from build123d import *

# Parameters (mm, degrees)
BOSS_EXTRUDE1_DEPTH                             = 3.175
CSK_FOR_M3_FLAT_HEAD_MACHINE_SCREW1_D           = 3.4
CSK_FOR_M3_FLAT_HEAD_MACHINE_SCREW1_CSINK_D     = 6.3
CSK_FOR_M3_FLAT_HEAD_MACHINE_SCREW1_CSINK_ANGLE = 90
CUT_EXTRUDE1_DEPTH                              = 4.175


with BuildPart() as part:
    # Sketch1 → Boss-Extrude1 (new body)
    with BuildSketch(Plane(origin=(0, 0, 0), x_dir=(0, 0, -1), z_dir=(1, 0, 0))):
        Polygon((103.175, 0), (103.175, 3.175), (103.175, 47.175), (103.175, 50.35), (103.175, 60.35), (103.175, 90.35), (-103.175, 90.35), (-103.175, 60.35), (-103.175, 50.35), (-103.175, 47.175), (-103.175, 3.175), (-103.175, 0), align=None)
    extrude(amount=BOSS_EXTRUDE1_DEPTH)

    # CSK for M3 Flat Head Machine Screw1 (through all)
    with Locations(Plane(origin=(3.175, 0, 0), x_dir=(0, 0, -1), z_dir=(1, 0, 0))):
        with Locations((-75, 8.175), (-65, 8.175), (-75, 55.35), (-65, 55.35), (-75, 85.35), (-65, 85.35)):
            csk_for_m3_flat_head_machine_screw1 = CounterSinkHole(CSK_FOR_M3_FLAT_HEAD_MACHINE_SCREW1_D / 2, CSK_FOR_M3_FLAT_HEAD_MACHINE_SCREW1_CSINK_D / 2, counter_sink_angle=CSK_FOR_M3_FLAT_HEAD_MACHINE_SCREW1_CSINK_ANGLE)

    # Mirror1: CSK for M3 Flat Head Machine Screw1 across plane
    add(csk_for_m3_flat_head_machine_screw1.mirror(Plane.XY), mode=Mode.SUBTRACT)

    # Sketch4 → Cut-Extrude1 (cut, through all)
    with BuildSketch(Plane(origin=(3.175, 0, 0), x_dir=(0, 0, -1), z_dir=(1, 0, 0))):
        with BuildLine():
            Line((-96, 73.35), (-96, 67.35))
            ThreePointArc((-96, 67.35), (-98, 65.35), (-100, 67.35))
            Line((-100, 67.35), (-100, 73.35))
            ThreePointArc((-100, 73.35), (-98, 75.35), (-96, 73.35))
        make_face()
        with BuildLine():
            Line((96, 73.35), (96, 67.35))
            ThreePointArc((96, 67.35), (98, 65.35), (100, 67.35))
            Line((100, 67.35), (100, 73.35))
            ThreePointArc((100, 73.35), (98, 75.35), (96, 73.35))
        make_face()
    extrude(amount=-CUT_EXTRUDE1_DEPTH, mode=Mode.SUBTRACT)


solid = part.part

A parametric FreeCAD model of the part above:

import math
import FreeCAD as App
import Part
import Sketcher

V = App.Vector

doc = App.newDocument("Part")
body = doc.addObject("PartDesign::Body", "Body")

sketch1 = body.newObject("Sketcher::SketchObject", "Sketch")
sketch1.AttachmentSupport = (doc.getObject("YZ_Plane"), [""])
sketch1.MapMode = "FlatFace"
sketch1.addGeometry([
    Part.LineSegment(V(0, -103.175, 0), V(90.35, -103.175, 0)),
    Part.LineSegment(V(90.35, -103.175, 0), V(90.35, 103.175, 0)),
    Part.LineSegment(V(90.35, 103.175, 0), V(0, 103.175, 0)),
    Part.LineSegment(V(0, 103.175, 0), V(0, -103.175, 0)),
], False)
sketch1.addConstraint([
    Sketcher.Constraint("Coincident", 0, 2, 1, 1),
    Sketcher.Constraint("Coincident", 1, 2, 2, 1),
    Sketcher.Constraint("Coincident", 2, 2, 3, 1),
    Sketcher.Constraint("Coincident", 3, 2, 0, 1),
    Sketcher.Constraint("Horizontal", 0),
    Sketcher.Constraint("Vertical", 1),
    Sketcher.Constraint("Horizontal", 2),
    Sketcher.Constraint("Vertical", 3),
    Sketcher.Constraint("Symmetric", 2, 2, 3, 2, -1, 1),
    Sketcher.Constraint("DistanceX", 0, 1, 0, 2, 90.35),
    Sketcher.Constraint("DistanceY", 1, 1, 1, 2, 206.35),
])
pad1 = body.newObject("PartDesign::Pad", "Pad")
pad1.Profile = sketch1
pad1.Length = 3.175

sketch2 = body.newObject("Sketcher::SketchObject", "Sketch001")
sketch2.AttachmentSupport = (doc.getObject("YZ_Plane"), [""])
sketch2.MapMode = "FlatFace"
sketch2.AttachmentOffset = App.Placement(V(0, 0, 3.175), App.Rotation())
sketch2.addGeometry([
    Part.Circle(V(8.175, 75, 0), V(0, 0, 1), 1.7),
    Part.Circle(V(8.175, 65, 0), V(0, 0, 1), 1.7),
    Part.Circle(V(55.35, 75, 0), V(0, 0, 1), 1.7),
    Part.Circle(V(55.35, 65, 0), V(0, 0, 1), 1.7),
    Part.Circle(V(85.35, 75, 0), V(0, 0, 1), 1.7),
    Part.Circle(V(85.35, 65, 0), V(0, 0, 1), 1.7),
], False)
sketch2.addConstraint([
    Sketcher.Constraint("Equal", 0, 1),
    Sketcher.Constraint("Equal", 1, 2),
    Sketcher.Constraint("Equal", 2, 3),
    Sketcher.Constraint("Equal", 3, 4),
    Sketcher.Constraint("Equal", 4, 5),
    Sketcher.Constraint("Horizontal", 0, 3, 2, 3),
    Sketcher.Constraint("Horizontal", 1, 3, 3, 3),
    Sketcher.Constraint("Horizontal", 2, 3, 4, 3),
    Sketcher.Constraint("Horizontal", 3, 3, 5, 3),
    Sketcher.Constraint("Vertical", 0, 3, 1, 3),
    Sketcher.Constraint("Vertical", 2, 3, 3, 3),
    Sketcher.Constraint("Vertical", 4, 3, 5, 3),
    Sketcher.Constraint("Diameter", 0, 3.4),
    Sketcher.Constraint("DistanceY", -1, 1, 0, 3, 75.0),
    Sketcher.Constraint("DistanceY", -1, 1, 1, 3, 65.0),
    Sketcher.Constraint("DistanceX", 2, 3, 4, 3, 30.0),
    Sketcher.Constraint("DistanceX", -1, 1, 2, 3, 55.35),
    Sketcher.Constraint("DistanceX", -1, 1, 0, 3, 8.175),
])
doc.recompute()
hole = body.newObject("PartDesign::Hole", "Hole")
hole.Profile = sketch2
hole.ThreadType = "None"
hole.Diameter = 3.4
hole.DepthType = "ThroughAll"
hole.HoleCutType = "Countersink"
hole.HoleCutDiameter = 6.3
hole.HoleCutCountersinkAngle = 90
doc.recompute()

mirrored = body.newObject("PartDesign::Mirrored", "Mirrored")
mirrored.Originals = [hole]
mirrored.MirrorPlane = (doc.getObject("XY_Plane"), [""])
body.Tip = mirrored

sketch3 = body.newObject("Sketcher::SketchObject", "Sketch002")
sketch3.AttachmentSupport = (doc.getObject("YZ_Plane"), [""])
sketch3.MapMode = "FlatFace"
sketch3.AttachmentOffset = App.Placement(V(0, 0, 3.175), App.Rotation())
sketch3.addGeometry([
    Part.LineSegment(V(67.35, 96, 0), V(73.35, 96, 0)),
    Part.ArcOfCircle(Part.Circle(V(73.35, 98, 0), V(0, 0, 1), 2), math.radians(-90), math.radians(90)),
    Part.LineSegment(V(73.35, 100, 0), V(67.35, 100, 0)),
    Part.ArcOfCircle(Part.Circle(V(67.35, 98, 0), V(0, 0, 1), 2), math.radians(90), math.radians(270)),
    Part.LineSegment(V(73.35, -96, 0), V(67.35, -96, 0)),
    Part.ArcOfCircle(Part.Circle(V(67.35, -98, 0), V(0, 0, 1), 2), math.radians(90), math.radians(270)),
    Part.LineSegment(V(67.35, -100, 0), V(73.35, -100, 0)),
    Part.ArcOfCircle(Part.Circle(V(73.35, -98, 0), V(0, 0, 1), 2), math.radians(-90), math.radians(90)),
], False)
sketch3.addConstraint([
    Sketcher.Constraint("Tangent", 0, 2, 1, 1),
    Sketcher.Constraint("Tangent", 1, 2, 2, 1),
    Sketcher.Constraint("Tangent", 2, 2, 3, 1),
    Sketcher.Constraint("Tangent", 3, 2, 0, 1),
    Sketcher.Constraint("Tangent", 4, 2, 5, 1),
    Sketcher.Constraint("Tangent", 5, 2, 6, 1),
    Sketcher.Constraint("Tangent", 6, 2, 7, 1),
    Sketcher.Constraint("Tangent", 7, 2, 4, 1),
    Sketcher.Constraint("Horizontal", 0),
    Sketcher.Constraint("Horizontal", 2),
    Sketcher.Constraint("Horizontal", 4),
    Sketcher.Constraint("Horizontal", 6),
    Sketcher.Constraint("Equal", 3, 5),
    Sketcher.Constraint("Symmetric", 3, 3, 5, 3, -1),
    Sketcher.Constraint("Vertical", 1, 3, 7, 3),
    Sketcher.Constraint("Radius", 1, 2.0),
    Sketcher.Constraint("DistanceX", 0, 1, 0, 2, 6.0),
    Sketcher.Constraint("DistanceY", -1, 1, 1, 3, 98.0),
    Sketcher.Constraint("DistanceX", -1, 1, 1, 3, 73.35),
])
pocket1 = body.newObject("PartDesign::Pocket", "Pocket")
pocket1.Profile = sketch3
pocket1.Type = "ThroughAll"

doc.recompute()
